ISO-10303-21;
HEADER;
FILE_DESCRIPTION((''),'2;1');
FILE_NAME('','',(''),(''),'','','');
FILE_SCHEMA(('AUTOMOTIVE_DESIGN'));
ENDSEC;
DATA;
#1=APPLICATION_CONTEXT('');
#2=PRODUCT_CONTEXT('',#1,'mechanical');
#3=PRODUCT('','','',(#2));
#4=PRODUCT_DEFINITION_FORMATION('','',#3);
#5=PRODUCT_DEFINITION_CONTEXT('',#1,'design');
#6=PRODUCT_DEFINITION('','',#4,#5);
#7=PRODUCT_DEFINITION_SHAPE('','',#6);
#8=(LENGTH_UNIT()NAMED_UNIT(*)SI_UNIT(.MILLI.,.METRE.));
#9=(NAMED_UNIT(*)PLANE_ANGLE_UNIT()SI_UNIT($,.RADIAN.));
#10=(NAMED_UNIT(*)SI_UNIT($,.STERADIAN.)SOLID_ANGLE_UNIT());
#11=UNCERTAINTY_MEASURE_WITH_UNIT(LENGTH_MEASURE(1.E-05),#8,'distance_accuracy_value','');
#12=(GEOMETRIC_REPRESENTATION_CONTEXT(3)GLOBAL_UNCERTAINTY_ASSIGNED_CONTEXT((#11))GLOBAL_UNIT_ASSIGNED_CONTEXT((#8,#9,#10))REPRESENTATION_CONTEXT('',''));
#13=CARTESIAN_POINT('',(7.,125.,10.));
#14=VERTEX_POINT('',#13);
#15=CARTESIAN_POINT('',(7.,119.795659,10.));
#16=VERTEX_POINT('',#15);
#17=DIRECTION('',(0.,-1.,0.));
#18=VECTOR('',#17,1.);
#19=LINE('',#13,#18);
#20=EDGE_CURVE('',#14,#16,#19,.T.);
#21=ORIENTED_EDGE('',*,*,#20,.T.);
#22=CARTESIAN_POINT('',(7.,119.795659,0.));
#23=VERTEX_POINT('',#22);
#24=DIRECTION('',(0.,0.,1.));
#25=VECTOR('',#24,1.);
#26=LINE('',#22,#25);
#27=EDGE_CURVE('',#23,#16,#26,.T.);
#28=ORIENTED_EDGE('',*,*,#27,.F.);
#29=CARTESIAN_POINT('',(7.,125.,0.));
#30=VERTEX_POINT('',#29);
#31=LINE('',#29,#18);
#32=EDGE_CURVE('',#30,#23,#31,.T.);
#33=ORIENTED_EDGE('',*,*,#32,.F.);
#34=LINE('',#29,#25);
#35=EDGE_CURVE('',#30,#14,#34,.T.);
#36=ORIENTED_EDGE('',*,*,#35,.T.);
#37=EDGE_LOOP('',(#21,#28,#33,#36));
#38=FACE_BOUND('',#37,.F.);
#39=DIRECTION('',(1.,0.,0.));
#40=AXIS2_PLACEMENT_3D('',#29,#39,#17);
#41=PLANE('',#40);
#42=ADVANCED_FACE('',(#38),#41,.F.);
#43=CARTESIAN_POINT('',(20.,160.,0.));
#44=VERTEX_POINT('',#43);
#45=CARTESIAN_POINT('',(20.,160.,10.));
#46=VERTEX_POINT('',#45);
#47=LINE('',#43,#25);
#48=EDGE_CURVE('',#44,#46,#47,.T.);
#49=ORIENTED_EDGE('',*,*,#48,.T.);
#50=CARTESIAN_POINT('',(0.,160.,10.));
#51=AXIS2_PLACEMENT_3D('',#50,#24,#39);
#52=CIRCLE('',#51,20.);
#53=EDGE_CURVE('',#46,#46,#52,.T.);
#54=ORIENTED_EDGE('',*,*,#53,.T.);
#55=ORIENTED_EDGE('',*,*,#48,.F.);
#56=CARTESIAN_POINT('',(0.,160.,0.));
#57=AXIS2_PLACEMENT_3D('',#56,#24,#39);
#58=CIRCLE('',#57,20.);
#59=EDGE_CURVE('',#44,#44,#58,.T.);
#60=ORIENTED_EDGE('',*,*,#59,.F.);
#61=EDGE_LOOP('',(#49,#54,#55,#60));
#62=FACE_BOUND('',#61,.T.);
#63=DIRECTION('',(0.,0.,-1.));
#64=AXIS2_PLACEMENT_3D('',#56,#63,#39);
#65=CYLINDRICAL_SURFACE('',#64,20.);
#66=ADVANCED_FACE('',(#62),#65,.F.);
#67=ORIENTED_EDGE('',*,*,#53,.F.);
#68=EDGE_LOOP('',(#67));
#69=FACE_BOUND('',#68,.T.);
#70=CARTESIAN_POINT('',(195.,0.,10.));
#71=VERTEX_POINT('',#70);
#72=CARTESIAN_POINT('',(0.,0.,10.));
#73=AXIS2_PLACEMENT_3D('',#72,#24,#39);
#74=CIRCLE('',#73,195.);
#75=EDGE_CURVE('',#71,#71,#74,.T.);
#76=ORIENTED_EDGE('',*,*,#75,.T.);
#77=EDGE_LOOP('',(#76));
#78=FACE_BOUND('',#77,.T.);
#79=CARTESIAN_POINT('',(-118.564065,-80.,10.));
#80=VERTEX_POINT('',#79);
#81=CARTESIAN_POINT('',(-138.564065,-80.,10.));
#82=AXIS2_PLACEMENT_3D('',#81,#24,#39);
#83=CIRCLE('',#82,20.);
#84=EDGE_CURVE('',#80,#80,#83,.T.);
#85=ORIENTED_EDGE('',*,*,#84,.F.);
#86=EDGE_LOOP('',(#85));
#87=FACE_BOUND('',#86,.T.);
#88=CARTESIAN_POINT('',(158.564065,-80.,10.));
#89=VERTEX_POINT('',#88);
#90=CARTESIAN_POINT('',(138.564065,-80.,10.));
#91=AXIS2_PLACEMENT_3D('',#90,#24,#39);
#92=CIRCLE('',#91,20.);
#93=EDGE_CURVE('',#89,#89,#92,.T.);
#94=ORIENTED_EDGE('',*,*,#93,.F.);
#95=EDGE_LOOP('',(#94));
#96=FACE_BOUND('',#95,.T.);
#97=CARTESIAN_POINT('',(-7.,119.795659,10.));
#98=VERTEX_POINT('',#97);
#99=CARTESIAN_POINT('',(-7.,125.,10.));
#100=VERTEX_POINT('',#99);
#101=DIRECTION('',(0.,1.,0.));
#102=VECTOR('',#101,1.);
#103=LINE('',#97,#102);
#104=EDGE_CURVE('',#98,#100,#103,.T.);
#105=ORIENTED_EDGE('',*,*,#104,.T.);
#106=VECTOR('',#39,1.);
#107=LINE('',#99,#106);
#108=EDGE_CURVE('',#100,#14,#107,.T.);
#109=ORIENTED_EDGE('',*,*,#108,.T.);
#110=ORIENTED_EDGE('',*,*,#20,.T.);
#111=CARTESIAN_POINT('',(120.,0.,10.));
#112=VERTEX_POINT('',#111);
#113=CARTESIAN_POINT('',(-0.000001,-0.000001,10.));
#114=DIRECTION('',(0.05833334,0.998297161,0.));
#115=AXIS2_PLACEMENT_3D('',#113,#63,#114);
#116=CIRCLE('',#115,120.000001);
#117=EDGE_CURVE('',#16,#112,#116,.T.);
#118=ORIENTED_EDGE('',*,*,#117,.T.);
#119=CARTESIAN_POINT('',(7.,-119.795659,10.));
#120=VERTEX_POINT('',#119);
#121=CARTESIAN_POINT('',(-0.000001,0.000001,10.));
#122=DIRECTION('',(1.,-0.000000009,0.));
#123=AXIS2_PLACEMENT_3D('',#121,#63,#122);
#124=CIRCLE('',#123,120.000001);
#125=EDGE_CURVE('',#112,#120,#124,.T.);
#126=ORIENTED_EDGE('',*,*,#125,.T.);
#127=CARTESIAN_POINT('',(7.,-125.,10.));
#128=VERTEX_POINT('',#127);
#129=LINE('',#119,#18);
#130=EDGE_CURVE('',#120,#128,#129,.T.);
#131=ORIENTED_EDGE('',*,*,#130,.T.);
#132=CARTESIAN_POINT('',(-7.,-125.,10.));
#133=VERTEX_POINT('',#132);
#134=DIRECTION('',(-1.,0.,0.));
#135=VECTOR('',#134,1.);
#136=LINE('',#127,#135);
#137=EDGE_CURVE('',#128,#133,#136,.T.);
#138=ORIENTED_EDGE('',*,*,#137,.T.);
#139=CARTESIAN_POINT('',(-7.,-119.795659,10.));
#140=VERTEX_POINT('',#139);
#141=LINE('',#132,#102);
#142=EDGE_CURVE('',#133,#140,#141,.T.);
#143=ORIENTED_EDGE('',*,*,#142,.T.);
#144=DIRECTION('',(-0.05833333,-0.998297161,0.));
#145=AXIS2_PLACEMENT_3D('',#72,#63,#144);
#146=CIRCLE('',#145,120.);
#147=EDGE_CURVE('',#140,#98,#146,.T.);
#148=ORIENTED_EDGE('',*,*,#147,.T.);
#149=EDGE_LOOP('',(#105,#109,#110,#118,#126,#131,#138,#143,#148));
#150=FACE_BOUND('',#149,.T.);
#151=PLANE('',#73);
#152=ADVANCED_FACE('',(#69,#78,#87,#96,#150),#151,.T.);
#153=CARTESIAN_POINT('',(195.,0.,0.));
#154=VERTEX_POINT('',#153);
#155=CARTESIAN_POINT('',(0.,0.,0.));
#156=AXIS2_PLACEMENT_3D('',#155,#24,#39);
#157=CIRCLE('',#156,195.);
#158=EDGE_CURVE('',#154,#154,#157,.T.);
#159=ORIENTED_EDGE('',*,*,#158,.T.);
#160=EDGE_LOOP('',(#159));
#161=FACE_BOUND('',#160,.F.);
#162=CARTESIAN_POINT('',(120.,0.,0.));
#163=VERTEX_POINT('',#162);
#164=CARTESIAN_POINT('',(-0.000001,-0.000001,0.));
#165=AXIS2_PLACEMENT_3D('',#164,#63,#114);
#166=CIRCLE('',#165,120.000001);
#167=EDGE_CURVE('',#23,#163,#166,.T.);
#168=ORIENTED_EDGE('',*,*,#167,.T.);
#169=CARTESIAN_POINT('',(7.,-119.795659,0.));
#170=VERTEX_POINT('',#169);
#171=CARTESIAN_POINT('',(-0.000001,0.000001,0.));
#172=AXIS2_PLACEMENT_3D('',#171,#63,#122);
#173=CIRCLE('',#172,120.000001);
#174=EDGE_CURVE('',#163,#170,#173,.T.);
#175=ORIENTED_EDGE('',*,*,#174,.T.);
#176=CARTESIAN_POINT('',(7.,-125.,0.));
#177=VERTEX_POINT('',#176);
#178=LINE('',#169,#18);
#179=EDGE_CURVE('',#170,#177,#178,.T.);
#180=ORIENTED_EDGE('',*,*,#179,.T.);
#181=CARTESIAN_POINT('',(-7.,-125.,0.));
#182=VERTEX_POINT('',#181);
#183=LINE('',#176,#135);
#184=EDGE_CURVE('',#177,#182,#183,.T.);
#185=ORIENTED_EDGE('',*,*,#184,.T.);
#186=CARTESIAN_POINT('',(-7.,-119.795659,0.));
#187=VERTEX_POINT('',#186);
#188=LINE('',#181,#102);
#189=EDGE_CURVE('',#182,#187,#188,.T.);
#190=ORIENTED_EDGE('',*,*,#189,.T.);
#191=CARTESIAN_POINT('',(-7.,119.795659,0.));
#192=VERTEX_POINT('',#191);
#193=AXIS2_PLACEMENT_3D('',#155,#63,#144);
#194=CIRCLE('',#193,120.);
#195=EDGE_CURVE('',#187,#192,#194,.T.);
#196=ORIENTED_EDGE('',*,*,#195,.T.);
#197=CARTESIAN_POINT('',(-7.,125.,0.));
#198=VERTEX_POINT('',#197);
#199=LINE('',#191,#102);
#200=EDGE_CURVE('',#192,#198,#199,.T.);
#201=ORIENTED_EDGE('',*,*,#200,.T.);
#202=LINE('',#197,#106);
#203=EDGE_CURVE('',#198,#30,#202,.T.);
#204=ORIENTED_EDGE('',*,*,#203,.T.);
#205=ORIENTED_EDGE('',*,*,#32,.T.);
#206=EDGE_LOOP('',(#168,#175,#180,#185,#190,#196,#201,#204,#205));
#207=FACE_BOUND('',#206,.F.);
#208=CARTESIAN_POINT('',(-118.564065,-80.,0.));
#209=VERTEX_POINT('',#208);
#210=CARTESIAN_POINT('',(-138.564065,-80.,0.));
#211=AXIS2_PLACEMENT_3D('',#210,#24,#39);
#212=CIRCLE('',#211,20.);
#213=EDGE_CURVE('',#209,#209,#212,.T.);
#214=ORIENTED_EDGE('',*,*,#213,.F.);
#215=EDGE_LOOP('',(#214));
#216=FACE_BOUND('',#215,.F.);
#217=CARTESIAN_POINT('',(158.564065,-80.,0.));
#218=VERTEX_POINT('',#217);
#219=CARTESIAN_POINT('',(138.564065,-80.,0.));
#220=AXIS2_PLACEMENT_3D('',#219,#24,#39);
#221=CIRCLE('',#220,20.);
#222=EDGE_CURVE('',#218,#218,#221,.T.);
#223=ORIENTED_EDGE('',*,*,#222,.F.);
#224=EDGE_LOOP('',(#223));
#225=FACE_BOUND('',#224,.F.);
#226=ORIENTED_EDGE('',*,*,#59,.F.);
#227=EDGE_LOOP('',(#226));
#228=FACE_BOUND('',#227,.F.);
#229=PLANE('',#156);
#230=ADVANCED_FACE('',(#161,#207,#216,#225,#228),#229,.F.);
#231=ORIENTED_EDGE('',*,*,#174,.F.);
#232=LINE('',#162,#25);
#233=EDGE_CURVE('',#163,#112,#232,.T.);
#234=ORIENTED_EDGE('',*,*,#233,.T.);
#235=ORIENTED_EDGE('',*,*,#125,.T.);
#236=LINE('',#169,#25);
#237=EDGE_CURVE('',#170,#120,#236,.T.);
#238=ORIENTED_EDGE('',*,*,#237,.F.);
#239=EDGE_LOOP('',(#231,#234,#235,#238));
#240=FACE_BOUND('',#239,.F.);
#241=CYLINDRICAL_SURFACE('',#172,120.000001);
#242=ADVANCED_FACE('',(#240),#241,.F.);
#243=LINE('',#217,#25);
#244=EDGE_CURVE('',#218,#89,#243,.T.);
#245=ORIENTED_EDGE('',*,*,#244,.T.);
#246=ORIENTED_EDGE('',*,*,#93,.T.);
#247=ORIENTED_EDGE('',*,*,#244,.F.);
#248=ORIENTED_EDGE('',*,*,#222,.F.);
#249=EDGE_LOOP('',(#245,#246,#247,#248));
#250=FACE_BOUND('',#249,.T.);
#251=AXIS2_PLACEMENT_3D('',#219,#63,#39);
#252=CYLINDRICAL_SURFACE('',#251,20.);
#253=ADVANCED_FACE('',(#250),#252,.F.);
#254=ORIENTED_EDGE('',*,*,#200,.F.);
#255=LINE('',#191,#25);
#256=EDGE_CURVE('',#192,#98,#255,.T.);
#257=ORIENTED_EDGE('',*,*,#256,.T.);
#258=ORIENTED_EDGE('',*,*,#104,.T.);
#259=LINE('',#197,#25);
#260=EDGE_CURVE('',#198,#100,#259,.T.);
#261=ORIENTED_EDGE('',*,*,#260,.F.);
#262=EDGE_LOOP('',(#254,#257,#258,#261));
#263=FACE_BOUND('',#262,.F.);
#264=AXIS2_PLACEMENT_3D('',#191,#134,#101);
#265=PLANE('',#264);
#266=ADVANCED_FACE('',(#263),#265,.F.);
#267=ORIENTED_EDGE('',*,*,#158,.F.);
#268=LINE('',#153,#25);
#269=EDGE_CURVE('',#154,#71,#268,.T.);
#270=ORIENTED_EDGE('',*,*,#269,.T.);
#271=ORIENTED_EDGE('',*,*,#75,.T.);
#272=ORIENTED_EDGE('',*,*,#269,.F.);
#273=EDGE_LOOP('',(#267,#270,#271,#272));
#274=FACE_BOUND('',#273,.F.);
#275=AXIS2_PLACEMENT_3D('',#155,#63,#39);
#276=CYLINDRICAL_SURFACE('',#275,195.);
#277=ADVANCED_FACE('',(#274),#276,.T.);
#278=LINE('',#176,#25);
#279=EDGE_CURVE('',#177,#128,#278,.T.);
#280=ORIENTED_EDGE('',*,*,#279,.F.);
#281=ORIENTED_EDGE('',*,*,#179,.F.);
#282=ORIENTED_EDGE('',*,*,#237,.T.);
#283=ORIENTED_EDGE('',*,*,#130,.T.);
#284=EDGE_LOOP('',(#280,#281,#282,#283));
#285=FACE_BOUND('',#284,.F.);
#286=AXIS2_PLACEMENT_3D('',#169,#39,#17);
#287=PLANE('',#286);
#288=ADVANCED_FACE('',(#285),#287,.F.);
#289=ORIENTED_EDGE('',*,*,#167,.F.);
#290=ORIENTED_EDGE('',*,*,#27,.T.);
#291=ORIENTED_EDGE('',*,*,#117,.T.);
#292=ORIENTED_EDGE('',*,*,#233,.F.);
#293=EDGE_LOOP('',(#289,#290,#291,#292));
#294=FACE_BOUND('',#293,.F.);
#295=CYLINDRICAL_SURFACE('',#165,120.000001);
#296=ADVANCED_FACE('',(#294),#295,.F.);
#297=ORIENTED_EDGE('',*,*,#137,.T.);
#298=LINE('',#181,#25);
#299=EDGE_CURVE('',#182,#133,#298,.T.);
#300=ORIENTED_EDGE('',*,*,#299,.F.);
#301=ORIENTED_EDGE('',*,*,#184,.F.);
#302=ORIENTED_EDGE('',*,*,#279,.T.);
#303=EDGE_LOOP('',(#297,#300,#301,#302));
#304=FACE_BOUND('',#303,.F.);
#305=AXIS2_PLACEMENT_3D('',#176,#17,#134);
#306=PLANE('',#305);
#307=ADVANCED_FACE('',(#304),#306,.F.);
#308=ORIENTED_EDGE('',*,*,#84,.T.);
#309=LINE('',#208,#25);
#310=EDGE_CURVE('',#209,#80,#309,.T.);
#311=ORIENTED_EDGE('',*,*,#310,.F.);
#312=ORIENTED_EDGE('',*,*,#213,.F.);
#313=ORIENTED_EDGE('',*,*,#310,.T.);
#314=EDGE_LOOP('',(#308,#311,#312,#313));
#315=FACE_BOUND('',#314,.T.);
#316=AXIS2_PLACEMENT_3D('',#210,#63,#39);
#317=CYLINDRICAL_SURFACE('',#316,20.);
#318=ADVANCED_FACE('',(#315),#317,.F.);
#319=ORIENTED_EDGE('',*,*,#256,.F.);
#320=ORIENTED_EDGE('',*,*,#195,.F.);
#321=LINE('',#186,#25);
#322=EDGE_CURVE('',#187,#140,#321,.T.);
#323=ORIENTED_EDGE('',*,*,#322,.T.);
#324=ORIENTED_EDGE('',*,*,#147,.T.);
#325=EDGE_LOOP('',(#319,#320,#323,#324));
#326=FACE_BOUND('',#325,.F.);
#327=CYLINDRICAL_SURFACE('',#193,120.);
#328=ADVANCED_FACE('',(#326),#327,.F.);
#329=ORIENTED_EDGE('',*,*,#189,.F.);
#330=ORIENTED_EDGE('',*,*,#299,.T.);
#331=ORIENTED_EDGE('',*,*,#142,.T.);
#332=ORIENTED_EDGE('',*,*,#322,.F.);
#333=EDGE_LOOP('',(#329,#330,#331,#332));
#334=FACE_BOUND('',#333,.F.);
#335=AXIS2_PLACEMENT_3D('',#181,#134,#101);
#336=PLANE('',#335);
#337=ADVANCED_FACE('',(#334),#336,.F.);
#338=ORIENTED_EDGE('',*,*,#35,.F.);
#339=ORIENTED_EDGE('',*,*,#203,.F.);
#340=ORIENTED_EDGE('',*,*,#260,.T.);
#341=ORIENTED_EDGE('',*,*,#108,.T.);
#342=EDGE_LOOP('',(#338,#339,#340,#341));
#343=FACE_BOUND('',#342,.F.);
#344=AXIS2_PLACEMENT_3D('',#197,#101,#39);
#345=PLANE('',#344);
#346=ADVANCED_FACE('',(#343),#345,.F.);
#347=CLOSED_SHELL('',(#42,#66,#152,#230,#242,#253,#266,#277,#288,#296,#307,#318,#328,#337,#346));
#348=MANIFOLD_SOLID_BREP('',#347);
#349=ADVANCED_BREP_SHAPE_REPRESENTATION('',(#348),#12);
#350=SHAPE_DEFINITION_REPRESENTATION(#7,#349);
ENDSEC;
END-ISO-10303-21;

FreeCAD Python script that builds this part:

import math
import FreeCAD as App
import Part
import Sketcher

doc = App.newDocument("Part")
body = doc.addObject("PartDesign::Body", "Body")

# Sketch on XY plane
sketch1 = doc.addObject("Sketcher::SketchObject", "Sketch")
body.addObject(sketch1)
sketch1.AttachmentSupport = (doc.XY_Plane, [""])
sketch1.MapMode = "FlatFace"
sketch1.addGeometry(Part.Circle(App.Vector(0, 0, 0), App.Vector(0, 0, 1), 195), False)
sketch1.addGeometry(Part.Circle(App.Vector(-138.564065, -80, 0), App.Vector(0, 0, 1), 20), False)
sketch1.addGeometry(Part.Circle(App.Vector(138.564065, -80, 0), App.Vector(0, 0, 1), 20), False)
sketch1.addGeometry(Part.LineSegment(App.Vector(7, 125, 0), App.Vector(7, 119.795659, 0)), False)
sketch1.addGeometry(Part.ArcOfCircle(Part.Circle(App.Vector(-0.000001, -0.000001, 0), App.Vector(0, 0, 1), 120.000001), math.radians(0.000001), math.radians(86.655847)), False)
sketch1.addGeometry(Part.ArcOfCircle(Part.Circle(App.Vector(-0.000001, 0.000001, 0), App.Vector(0, 0, 1), 120.000001), math.radians(-86.655847), math.radians(-0.000001)), False)
sketch1.addGeometry(Part.LineSegment(App.Vector(7, -119.795659, 0), App.Vector(7, -125, 0)), False)
sketch1.addGeometry(Part.LineSegment(App.Vector(7, -125, 0), App.Vector(-7, -125, 0)), False)
sketch1.addGeometry(Part.LineSegment(App.Vector(-7, -125, 0), App.Vector(-7, -119.795659, 0)), False)
sketch1.addGeometry(Part.ArcOfCircle(Part.Circle(App.Vector(0, 0, 0), App.Vector(0, 0, 1), 120), math.radians(93.344152), math.radians(266.655848)), False)
sketch1.addGeometry(Part.LineSegment(App.Vector(-7, 119.795659, 0), App.Vector(-7, 125, 0)), False)
sketch1.addGeometry(Part.LineSegment(App.Vector(-7, 125, 0), App.Vector(7, 125, 0)), False)
sketch1.addGeometry(Part.Circle(App.Vector(0, 160, 0), App.Vector(0, 0, 1), 20), False)
sketch1.addConstraint(Sketcher.Constraint("Coincident", 3, 2, 4, 2))
sketch1.addConstraint(Sketcher.Constraint("Tangent", 4, 1, 5, 2))
sketch1.addConstraint(Sketcher.Constraint("Coincident", 5, 1, 6, 1))
sketch1.addConstraint(Sketcher.Constraint("Coincident", 6, 2, 7, 1))
sketch1.addConstraint(Sketcher.Constraint("Coincident", 7, 2, 8, 1))
sketch1.addConstraint(Sketcher.Constraint("Coincident", 8, 2, 9, 2))
sketch1.addConstraint(Sketcher.Constraint("Coincident", 9, 1, 10, 1))
sketch1.addConstraint(Sketcher.Constraint("Coincident", 10, 2, 11, 1))
sketch1.addConstraint(Sketcher.Constraint("Coincident", 11, 2, 3, 1))
sketch1.addConstraint(Sketcher.Constraint("Vertical", 3))
sketch1.addConstraint(Sketcher.Constraint("Vertical", 6))
sketch1.addConstraint(Sketcher.Constraint("Horizontal", 7))
sketch1.addConstraint(Sketcher.Constraint("Vertical", 8))
sketch1.addConstraint(Sketcher.Constraint("Vertical", 10))
sketch1.addConstraint(Sketcher.Constraint("Horizontal", 11))
sketch1.addConstraint(Sketcher.Constraint("Coincident", 0, 3, -1, 1))
sketch1.addConstraint(Sketcher.Constraint("Coincident", 4, 3, -1, 1))
sketch1.addConstraint(Sketcher.Constraint("Coincident", 9, 3, -1, 1))
sketch1.addConstraint(Sketcher.Constraint("Equal", 1, 2))
sketch1.addConstraint(Sketcher.Constraint("Equal", 4, 5))
sketch1.addConstraint(Sketcher.Constraint("Equal", 5, 9))
sketch1.addConstraint(Sketcher.Constraint("Equal", 2, 12))
sketch1.addConstraint(Sketcher.Constraint("Symmetric", 6, 2, 10, 2, -1, 1))
sketch1.addConstraint(Sketcher.Constraint("Symmetric", 1, 3, 2, 3, -2))
sketch1.addConstraint(Sketcher.Constraint("PointOnObject", 12, 3, -2))
sketch1.addConstraint(Sketcher.Constraint("PointOnObject", 4, 1, -1))
sketch1.addConstraint(Sketcher.Constraint("Horizontal", 5, 1, 8, 2))
sketch1.addConstraint(Sketcher.Constraint("Horizontal", 3, 2, 9, 1))
sketch1.addConstraint(Sketcher.Constraint("Diameter", 0, 390.0))
sketch1.addConstraint(Sketcher.Constraint("Diameter", 1, 40.0))
sketch1.addConstraint(Sketcher.Constraint("Radius", 4, 120.000001))
sketch1.addConstraint(Sketcher.Constraint("DistanceX", 7, 2, 7, 1, 14.0))
sketch1.addConstraint(Sketcher.Constraint("DistanceY", 1, 3, -1, 1, 80.0))
sketch1.addConstraint(Sketcher.Constraint("DistanceY", -1, 1, 12, 3, 160.0))
sketch1.addConstraint(Sketcher.Constraint("DistanceY", 6, 2, -1, 1, 125.0))
sketch1.addConstraint(Sketcher.Constraint("DistanceX", 1, 3, 2, 3, 277.12813))
pad1 = doc.addObject("PartDesign::Pad", "Pad")
body.addObject(pad1)
pad1.Profile = sketch1
pad1.Length = 10

doc.recompute()
